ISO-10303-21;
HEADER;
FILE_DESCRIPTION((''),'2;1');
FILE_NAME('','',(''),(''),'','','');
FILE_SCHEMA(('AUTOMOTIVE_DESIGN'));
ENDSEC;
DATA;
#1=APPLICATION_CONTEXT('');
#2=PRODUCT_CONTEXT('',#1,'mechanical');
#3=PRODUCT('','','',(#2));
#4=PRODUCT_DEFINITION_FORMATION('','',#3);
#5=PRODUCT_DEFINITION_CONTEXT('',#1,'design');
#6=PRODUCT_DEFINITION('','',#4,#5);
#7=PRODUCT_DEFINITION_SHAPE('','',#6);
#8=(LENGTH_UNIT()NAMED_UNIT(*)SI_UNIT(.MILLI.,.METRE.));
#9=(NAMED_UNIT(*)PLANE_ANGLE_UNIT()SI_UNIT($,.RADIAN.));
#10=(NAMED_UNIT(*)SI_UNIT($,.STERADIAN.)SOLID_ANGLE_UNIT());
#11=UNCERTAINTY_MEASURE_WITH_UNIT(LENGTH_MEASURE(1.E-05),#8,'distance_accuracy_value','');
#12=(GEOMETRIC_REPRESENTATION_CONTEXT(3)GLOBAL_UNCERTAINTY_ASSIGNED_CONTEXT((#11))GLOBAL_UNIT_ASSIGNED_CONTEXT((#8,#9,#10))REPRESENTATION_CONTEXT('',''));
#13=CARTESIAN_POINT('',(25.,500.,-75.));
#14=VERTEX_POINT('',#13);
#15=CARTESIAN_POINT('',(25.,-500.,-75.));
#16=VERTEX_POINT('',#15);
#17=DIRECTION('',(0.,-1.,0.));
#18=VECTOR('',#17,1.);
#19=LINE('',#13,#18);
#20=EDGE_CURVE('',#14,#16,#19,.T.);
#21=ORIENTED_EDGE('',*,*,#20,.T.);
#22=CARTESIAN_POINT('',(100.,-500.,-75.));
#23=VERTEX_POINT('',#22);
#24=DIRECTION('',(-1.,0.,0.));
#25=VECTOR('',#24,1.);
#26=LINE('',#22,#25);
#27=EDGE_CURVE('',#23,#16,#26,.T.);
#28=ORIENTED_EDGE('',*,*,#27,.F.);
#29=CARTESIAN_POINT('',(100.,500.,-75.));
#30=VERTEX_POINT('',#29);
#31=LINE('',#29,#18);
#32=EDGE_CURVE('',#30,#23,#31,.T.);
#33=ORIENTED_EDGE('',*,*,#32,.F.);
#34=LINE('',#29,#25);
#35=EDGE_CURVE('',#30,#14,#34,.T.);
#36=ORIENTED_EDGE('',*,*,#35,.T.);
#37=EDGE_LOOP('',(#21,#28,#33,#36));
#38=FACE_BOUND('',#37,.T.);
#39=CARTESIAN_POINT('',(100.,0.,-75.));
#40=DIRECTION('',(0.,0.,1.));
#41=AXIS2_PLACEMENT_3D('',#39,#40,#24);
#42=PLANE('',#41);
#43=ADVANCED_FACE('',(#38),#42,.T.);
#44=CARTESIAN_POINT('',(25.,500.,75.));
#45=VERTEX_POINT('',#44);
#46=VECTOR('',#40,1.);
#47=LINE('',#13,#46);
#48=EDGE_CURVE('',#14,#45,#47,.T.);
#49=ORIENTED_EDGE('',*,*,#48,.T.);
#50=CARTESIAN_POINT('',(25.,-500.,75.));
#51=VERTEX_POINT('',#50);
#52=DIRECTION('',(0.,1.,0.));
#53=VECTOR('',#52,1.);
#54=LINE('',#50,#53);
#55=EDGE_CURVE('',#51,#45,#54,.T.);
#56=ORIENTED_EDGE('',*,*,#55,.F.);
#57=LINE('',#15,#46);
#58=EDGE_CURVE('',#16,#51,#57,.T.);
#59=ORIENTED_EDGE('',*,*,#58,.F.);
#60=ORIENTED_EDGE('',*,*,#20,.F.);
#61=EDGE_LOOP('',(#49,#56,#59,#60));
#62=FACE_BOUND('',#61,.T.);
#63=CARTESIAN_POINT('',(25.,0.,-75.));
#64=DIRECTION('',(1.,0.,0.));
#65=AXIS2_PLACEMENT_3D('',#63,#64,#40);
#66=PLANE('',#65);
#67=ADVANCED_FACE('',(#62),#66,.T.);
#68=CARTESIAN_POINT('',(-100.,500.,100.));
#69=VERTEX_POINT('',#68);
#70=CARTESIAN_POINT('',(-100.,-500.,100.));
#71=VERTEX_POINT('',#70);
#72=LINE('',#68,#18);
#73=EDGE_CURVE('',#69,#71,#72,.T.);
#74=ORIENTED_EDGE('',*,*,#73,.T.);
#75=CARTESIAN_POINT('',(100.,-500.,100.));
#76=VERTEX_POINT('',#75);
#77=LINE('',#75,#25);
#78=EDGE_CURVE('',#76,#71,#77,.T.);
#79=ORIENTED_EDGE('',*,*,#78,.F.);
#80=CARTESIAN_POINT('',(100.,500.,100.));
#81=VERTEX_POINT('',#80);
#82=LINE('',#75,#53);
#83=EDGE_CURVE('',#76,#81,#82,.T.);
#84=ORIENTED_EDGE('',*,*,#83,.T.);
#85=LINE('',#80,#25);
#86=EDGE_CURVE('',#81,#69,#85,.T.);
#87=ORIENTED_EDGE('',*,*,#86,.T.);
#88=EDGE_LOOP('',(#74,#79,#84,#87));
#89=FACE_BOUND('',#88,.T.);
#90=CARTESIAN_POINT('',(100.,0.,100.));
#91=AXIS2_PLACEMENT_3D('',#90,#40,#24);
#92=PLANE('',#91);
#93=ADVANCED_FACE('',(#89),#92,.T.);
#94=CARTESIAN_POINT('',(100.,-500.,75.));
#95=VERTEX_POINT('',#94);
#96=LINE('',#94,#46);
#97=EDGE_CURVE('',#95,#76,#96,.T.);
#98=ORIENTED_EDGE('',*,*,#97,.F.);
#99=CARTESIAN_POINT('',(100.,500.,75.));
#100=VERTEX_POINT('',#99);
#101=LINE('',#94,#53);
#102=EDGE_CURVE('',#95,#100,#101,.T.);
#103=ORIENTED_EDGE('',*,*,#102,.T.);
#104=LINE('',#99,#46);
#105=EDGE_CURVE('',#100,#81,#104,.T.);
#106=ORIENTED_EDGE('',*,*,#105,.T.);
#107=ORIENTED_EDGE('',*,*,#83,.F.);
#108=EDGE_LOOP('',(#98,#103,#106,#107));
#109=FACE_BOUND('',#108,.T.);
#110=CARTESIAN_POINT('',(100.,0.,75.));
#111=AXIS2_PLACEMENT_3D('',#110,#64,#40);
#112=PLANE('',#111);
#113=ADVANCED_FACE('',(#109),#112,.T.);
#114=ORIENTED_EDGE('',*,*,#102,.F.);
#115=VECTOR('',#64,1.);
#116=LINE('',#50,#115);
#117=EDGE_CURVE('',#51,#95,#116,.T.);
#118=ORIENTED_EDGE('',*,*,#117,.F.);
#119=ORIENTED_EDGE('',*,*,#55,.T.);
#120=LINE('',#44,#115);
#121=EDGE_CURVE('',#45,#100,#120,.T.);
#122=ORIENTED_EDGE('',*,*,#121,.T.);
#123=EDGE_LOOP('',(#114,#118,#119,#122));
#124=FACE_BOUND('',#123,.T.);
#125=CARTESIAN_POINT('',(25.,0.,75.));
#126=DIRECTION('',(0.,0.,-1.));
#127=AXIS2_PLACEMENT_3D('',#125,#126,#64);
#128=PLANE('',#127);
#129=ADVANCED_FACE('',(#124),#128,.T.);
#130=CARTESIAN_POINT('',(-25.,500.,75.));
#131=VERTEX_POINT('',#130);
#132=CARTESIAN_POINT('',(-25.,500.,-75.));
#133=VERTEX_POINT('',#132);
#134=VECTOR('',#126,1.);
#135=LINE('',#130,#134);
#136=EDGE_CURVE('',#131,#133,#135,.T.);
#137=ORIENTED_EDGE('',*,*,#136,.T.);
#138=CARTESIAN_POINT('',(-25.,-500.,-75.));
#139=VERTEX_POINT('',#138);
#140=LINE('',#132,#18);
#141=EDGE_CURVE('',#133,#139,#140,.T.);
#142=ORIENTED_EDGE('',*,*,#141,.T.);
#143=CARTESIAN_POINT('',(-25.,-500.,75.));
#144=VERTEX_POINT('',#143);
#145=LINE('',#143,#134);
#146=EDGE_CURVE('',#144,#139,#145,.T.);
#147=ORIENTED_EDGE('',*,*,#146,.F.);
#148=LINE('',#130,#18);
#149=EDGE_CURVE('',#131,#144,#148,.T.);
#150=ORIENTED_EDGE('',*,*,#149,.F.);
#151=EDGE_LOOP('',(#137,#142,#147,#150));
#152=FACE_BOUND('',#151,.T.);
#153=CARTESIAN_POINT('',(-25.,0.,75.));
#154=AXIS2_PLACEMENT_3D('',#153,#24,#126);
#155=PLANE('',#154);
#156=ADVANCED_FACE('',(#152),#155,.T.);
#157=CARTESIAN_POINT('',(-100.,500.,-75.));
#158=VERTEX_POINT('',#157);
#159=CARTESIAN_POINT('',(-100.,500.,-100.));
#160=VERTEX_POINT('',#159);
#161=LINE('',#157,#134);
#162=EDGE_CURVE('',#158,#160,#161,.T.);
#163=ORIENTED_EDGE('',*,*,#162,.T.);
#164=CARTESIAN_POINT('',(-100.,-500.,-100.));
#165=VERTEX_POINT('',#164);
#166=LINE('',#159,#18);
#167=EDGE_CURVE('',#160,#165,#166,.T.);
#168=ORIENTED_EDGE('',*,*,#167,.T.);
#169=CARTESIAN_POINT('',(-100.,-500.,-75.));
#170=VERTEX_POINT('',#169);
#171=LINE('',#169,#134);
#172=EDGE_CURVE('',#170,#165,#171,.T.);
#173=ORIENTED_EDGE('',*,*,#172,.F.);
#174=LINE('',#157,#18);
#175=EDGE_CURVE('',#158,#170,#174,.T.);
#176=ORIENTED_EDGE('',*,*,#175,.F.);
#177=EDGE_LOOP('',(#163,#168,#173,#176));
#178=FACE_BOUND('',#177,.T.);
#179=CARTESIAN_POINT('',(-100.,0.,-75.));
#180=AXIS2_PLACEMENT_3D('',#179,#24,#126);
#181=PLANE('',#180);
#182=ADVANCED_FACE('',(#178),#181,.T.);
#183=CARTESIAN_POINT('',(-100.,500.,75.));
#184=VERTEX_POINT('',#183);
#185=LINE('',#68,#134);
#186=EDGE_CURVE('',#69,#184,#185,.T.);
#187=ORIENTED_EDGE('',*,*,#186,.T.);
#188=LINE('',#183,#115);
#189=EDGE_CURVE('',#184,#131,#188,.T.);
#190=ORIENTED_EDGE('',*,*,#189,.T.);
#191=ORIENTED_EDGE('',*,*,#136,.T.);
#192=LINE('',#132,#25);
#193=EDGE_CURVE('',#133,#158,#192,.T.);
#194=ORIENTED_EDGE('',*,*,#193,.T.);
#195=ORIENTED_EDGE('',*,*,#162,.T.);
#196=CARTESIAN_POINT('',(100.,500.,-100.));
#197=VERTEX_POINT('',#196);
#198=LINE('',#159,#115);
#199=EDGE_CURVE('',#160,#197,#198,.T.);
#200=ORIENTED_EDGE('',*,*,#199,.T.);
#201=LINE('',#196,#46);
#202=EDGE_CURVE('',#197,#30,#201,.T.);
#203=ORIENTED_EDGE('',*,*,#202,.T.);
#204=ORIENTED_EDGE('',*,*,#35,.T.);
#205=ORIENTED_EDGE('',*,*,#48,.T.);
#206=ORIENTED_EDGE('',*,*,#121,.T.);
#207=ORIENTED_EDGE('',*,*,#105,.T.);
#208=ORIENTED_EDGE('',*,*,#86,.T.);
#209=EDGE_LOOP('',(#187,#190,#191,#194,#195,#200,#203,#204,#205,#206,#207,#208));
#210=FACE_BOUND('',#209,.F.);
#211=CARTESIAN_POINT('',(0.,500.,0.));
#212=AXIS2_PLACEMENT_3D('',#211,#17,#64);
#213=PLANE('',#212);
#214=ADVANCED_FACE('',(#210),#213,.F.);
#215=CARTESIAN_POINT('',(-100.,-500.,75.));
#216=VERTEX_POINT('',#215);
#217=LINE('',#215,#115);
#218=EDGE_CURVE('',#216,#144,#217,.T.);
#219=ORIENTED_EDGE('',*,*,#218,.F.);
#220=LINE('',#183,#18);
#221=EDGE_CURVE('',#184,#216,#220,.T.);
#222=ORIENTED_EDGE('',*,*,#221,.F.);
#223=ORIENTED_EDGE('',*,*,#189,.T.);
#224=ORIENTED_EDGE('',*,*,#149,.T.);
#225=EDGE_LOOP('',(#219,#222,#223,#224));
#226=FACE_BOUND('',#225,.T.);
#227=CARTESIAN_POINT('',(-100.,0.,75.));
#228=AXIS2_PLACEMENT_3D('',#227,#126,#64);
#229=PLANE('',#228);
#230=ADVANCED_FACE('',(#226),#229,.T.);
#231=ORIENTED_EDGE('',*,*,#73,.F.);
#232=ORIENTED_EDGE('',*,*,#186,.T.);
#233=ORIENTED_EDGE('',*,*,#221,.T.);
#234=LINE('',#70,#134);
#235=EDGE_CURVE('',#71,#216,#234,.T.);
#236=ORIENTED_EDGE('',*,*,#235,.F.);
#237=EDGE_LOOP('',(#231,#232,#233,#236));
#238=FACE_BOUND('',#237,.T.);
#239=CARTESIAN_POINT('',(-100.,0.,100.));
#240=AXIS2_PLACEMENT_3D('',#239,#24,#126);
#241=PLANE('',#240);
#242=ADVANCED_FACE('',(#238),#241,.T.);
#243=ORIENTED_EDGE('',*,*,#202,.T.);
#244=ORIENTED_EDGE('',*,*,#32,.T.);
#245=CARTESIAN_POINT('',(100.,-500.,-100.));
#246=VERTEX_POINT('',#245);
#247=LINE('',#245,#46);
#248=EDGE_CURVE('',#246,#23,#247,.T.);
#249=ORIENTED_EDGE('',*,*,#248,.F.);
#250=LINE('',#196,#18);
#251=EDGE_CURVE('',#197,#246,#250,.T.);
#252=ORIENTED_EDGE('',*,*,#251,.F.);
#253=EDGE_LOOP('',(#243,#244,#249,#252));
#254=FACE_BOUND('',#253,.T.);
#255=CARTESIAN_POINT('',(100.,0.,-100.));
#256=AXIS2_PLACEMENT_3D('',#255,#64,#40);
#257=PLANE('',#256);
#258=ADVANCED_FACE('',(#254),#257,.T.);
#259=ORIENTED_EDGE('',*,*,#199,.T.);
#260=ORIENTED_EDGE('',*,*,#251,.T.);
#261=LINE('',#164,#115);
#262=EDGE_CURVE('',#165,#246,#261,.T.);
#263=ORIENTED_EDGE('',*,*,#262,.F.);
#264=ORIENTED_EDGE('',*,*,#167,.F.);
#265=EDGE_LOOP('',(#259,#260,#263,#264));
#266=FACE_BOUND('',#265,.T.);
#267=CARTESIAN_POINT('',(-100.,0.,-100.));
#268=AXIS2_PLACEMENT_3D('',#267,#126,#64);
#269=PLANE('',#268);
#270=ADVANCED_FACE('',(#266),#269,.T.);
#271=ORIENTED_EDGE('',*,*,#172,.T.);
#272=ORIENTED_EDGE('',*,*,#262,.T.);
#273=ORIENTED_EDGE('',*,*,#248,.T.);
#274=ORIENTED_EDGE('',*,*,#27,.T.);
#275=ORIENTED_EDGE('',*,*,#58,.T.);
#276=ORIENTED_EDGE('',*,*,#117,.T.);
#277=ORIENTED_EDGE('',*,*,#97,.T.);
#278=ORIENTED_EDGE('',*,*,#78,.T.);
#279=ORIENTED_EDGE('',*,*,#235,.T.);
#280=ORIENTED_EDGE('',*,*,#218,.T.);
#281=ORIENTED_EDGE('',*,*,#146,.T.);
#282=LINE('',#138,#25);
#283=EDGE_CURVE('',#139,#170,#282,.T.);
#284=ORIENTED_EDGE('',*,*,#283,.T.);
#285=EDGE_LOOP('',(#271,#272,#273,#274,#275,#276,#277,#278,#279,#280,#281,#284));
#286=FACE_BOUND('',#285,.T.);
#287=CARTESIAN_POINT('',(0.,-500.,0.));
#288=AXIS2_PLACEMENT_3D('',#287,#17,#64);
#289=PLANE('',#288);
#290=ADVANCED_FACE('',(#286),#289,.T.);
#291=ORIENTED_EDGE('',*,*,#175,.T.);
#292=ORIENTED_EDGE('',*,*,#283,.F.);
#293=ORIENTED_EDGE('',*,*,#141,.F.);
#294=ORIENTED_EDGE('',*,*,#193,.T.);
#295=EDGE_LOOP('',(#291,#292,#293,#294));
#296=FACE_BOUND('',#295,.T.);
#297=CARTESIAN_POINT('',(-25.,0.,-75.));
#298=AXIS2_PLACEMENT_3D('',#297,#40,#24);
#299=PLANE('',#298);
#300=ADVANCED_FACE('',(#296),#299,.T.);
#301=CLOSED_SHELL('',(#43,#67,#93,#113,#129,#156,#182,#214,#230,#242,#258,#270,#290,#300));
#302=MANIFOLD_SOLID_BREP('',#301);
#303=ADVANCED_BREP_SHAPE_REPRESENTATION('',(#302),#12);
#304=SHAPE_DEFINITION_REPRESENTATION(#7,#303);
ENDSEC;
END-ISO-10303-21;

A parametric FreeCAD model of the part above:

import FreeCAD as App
import Part
import Sketcher

V = App.Vector
Q = App.Units.Quantity


def add_polygon(sketch, points):
    """Adds a closed chain of lines whose ends are joined by coincident constraints."""
    first, n = sketch.GeometryCount, len(points)
    for a, b in zip(points, points[1:] + points[:1]):
        sketch.addGeometry(Part.LineSegment(App.Vector(*a, 0), App.Vector(*b, 0)), False)
    for i in range(n):
        sketch.addConstraint(Sketcher.Constraint("Coincident", first + i, 2, first + (i + 1) % n, 1))

doc = App.newDocument("Part")
body = doc.addObject("PartDesign::Body", "Body")

sketch1 = body.newObject("Sketcher::SketchObject", "Sketch")
sketch1.AttachmentSupport = (doc.getObject("XZ_Plane"), [""])
sketch1.MapMode = "FlatFace"
add_polygon(sketch1, [(100, 100), (-100, 100), (-100, 75), (-25, 75), (-25, -75), (-100, -75), (-100, -100), (100, -100), (100, -75), (25, -75), (25, 75), (100, 75)])
sketch1.addConstraint(Sketcher.Constraint("Horizontal", 0))
sketch1.addConstraint(Sketcher.Constraint("Vertical", 1))
sketch1.addConstraint(Sketcher.Constraint("Horizontal", 2))
sketch1.addConstraint(Sketcher.Constraint("Vertical", 3))
sketch1.addConstraint(Sketcher.Constraint("Horizontal", 4))
sketch1.addConstraint(Sketcher.Constraint("Vertical", 5))
sketch1.addConstraint(Sketcher.Constraint("Horizontal", 6))
sketch1.addConstraint(Sketcher.Constraint("Vertical", 7))
sketch1.addConstraint(Sketcher.Constraint("Horizontal", 8))
sketch1.addConstraint(Sketcher.Constraint("Vertical", 9))
sketch1.addConstraint(Sketcher.Constraint("Horizontal", 10))
sketch1.addConstraint(Sketcher.Constraint("Vertical", 11))
sketch1.addConstraint(Sketcher.Constraint("Symmetric", 0, 2, 6, 2, -1, 1))
sketch1.addConstraint(Sketcher.Constraint("Symmetric", 2, 2, 8, 2, -1, 1))
sketch1.addConstraint(Sketcher.Constraint("Symmetric", 4, 2, 10, 2, -1, 1))
sketch1.addConstraint(Sketcher.Constraint("Symmetric", 4, 2, 7, 2, -2))
sketch1.addConstraint(Sketcher.Constraint("DistanceX", 0, 2, 0, 1, Q("200 mm")))
sketch1.addConstraint(Sketcher.Constraint("DistanceX", 2, 1, 2, 2, Q("75 mm")))
sketch1.addConstraint(Sketcher.Constraint("DistanceY", 1, 2, 1, 1, Q("25 mm")))
sketch1.addConstraint(Sketcher.Constraint("DistanceY", 3, 2, 3, 1, Q("150 mm")))
pad1 = body.newObject("PartDesign::Pad", "Pad")
pad1.Profile = sketch1
pad1.Length = 1000
pad1.Midplane = True

doc.recompute()
